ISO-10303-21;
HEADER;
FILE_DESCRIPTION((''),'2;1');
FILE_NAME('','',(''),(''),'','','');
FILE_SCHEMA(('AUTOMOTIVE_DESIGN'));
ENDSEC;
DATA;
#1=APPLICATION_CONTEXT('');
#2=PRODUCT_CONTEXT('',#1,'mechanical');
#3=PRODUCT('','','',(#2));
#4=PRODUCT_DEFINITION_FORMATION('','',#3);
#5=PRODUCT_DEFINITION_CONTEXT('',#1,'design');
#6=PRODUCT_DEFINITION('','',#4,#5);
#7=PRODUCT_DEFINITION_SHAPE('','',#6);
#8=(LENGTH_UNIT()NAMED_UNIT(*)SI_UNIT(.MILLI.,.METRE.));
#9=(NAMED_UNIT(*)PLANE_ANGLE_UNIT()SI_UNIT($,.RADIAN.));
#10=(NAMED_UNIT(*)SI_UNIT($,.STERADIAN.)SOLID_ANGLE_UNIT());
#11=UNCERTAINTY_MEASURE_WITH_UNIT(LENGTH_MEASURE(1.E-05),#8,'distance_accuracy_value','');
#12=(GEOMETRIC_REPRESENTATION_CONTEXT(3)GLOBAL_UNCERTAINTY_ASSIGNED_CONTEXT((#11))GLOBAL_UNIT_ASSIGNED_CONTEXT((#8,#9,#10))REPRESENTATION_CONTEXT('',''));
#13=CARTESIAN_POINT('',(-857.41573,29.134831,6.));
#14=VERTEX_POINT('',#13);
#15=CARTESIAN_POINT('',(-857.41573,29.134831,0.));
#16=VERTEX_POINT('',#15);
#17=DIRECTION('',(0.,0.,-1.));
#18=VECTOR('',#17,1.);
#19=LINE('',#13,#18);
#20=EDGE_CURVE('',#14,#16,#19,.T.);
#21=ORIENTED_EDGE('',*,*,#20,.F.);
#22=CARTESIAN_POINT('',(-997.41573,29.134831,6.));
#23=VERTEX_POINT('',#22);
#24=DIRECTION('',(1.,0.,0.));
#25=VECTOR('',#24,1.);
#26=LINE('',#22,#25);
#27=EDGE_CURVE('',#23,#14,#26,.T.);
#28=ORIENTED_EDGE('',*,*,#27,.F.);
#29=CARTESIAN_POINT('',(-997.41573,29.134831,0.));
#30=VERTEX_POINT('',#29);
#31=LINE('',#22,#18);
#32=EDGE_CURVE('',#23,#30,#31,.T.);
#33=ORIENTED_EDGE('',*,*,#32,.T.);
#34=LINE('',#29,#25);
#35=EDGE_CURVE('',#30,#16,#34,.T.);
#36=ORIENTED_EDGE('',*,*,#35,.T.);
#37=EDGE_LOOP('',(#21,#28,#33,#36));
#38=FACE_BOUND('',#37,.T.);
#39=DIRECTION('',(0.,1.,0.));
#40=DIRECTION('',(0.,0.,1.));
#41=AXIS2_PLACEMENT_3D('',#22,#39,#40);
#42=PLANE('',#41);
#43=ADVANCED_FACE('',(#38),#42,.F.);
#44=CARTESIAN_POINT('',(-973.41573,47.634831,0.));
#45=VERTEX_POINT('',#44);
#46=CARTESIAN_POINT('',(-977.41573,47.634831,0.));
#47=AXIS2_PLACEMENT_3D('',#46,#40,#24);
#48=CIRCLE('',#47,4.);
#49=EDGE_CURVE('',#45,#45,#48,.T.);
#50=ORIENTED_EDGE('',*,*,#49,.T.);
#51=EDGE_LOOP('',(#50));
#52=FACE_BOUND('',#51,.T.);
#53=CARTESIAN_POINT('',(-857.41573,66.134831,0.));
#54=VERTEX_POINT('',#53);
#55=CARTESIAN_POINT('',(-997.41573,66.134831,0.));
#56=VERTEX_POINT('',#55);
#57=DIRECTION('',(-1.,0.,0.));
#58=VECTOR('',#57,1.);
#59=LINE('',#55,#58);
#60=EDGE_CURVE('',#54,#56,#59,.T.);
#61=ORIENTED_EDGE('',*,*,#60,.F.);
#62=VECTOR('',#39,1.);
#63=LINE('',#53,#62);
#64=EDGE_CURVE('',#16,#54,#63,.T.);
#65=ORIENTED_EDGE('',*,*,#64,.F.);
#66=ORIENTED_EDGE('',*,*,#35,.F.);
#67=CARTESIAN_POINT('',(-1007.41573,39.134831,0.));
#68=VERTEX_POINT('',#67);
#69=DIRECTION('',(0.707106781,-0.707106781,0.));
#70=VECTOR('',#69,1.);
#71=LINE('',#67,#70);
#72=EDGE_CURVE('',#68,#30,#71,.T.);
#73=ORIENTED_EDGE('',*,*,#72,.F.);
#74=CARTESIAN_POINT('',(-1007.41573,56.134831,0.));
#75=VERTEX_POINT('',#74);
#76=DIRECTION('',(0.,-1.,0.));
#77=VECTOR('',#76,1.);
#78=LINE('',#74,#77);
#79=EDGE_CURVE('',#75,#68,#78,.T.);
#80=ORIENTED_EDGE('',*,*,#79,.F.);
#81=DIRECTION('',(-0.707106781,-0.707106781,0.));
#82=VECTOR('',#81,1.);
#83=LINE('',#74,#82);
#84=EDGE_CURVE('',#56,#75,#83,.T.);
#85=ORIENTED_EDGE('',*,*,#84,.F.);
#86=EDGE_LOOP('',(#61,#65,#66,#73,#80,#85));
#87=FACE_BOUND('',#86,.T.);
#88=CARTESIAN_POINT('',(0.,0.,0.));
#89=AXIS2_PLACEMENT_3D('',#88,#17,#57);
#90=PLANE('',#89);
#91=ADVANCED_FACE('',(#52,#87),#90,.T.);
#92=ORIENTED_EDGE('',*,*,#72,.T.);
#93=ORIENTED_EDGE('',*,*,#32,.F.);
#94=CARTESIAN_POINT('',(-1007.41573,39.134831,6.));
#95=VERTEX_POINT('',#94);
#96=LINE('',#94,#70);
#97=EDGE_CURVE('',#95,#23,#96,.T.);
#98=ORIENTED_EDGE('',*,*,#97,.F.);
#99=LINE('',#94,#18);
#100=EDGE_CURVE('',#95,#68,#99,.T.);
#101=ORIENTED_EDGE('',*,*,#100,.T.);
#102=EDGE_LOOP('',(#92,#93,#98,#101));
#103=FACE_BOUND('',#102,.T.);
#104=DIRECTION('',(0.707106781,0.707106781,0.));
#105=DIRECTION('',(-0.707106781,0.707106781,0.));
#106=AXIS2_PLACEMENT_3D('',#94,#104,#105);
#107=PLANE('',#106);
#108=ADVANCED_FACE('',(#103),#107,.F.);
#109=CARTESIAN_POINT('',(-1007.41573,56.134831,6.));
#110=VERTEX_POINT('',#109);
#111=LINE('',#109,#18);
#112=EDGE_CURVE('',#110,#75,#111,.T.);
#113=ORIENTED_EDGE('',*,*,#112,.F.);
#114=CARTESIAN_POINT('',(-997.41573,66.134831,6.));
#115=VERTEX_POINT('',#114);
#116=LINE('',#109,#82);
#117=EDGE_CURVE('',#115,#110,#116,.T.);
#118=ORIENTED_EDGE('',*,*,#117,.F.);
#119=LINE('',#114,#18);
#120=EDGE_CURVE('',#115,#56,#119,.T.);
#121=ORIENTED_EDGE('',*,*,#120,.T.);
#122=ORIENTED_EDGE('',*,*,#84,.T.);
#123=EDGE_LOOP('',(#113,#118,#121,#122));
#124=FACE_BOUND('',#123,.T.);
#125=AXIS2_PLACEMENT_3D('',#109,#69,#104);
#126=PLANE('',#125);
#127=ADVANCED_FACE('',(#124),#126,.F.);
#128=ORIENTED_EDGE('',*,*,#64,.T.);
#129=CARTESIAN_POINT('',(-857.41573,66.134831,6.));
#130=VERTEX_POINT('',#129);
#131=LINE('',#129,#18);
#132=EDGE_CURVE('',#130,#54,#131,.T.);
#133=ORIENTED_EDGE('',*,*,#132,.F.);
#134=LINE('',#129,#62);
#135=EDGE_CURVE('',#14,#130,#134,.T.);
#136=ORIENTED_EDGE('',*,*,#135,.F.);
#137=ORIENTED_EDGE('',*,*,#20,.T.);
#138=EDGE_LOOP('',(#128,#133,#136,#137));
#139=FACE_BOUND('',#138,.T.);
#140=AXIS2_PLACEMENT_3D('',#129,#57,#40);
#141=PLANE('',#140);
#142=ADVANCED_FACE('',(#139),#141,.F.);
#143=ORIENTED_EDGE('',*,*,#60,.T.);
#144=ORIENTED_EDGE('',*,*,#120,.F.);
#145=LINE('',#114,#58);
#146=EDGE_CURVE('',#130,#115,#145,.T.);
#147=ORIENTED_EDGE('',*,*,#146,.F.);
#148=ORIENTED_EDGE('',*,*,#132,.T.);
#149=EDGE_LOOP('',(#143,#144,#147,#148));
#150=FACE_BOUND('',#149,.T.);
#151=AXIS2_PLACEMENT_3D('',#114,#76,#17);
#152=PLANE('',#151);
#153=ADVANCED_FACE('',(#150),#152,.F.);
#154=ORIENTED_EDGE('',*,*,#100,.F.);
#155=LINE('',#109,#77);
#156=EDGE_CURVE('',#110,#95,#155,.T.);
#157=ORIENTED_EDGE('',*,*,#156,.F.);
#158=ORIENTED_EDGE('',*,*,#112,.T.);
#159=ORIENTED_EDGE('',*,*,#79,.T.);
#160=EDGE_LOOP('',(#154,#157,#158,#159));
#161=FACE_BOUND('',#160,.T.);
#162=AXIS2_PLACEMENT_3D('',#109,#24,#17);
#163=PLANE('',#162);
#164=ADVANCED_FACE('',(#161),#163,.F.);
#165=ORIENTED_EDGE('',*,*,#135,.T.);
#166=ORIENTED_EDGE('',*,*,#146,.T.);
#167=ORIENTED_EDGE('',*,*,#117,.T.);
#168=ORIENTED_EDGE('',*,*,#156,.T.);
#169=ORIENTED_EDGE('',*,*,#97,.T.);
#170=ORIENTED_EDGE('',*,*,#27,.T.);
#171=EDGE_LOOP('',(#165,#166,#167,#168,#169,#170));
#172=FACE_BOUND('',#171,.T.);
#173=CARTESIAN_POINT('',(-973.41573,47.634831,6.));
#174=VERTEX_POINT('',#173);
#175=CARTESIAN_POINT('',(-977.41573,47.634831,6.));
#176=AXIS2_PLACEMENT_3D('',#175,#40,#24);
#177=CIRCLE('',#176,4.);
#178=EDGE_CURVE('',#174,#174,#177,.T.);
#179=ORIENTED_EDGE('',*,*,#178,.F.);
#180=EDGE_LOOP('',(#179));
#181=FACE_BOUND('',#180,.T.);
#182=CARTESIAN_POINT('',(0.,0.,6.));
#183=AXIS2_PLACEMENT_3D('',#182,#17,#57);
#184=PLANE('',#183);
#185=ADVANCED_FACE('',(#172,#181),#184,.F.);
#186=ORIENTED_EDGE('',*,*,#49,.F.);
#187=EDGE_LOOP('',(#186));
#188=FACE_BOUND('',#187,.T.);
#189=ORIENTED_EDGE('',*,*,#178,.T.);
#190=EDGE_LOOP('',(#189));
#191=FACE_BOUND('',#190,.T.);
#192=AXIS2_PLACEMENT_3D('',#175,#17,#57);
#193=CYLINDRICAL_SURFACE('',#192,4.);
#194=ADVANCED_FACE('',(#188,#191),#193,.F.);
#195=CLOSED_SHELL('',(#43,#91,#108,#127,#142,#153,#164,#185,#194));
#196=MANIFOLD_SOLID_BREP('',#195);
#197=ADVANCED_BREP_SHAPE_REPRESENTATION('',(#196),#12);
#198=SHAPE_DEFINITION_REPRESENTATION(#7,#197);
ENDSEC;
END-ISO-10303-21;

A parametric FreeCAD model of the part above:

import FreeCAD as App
import Part
import Sketcher
from FreeCAD import Vector

doc = App.newDocument("Part")
body = doc.addObject("PartDesign::Body", "Body")

# Sketch on XY plane
sketch1 = body.newObject("Sketcher::SketchObject", "Sketch")
sketch1.AttachmentSupport = (doc.getObject("XY_Plane"), [""])
sketch1.MapMode = "FlatFace"
sketch1.addGeometry(Part.LineSegment(Vector(-857.4, 66.1, 0), Vector(-997.4, 66.1, 0)), False)
sketch1.addGeometry(Part.LineSegment(Vector(-997.4, 66.1, 0), Vector(-1007.4, 56.1, 0)), False)
sketch1.addGeometry(Part.LineSegment(Vector(-1007.4, 56.1, 0), Vector(-1007.4, 39.1, 0)), False)
sketch1.addGeometry(Part.LineSegment(Vector(-1007.4, 39.1, 0), Vector(-997.4, 29.1, 0)), False)
sketch1.addGeometry(Part.LineSegment(Vector(-997.4, 29.1, 0), Vector(-857.4, 29.1, 0)), False)
sketch1.addGeometry(Part.LineSegment(Vector(-857.4, 29.1, 0), Vector(-857.4, 66.1, 0)), False)
sketch1.addGeometry(Part.Circle(Vector(-977.4, 47.6, 0), Vector(0, 0, 1), 4), False)
sketch1.addConstraint(Sketcher.Constraint("Coincident", 0, 2, 1, 1))
sketch1.addConstraint(Sketcher.Constraint("Coincident", 1, 2, 2, 1))
sketch1.addConstraint(Sketcher.Constraint("Coincident", 2, 2, 3, 1))
sketch1.addConstraint(Sketcher.Constraint("Coincident", 3, 2, 4, 1))
sketch1.addConstraint(Sketcher.Constraint("Coincident", 4, 2, 5, 1))
sketch1.addConstraint(Sketcher.Constraint("Coincident", 5, 2, 0, 1))
sketch1.addConstraint(Sketcher.Constraint("Horizontal", 0))
sketch1.addConstraint(Sketcher.Constraint("Vertical", 2))
sketch1.addConstraint(Sketcher.Constraint("Horizontal", 4))
sketch1.addConstraint(Sketcher.Constraint("Vertical", 5))
sketch1.addConstraint(Sketcher.Constraint("Perpendicular", 1, 3))
sketch1.addConstraint(Sketcher.Constraint("Vertical", 0, 2, 3, 2))
sketch1.addConstraint(Sketcher.Constraint("Equal", 1, 3))
sketch1.addConstraint(Sketcher.Constraint("Diameter", 6, 8.0))
sketch1.addConstraint(Sketcher.Constraint("DistanceX", 0, 2, 0, 1, 140.0))
sketch1.addConstraint(Sketcher.Constraint("DistanceY", 2, 2, 2, 1, 17.0))
sketch1.addConstraint(Sketcher.Constraint("DistanceY", 5, 1, 5, 2, 37.0))
sketch1.addConstraint(Sketcher.Constraint("DistanceX", 0, 2, 6, 3, 20.0))
sketch1.addConstraint(Sketcher.Constraint("DistanceY", 6, 3, 0, 2, 18.5))
sketch1.addConstraint(Sketcher.Constraint("DistanceX", 6, 3, -1, 1, 977.41573))
sketch1.addConstraint(Sketcher.Constraint("DistanceY", -1, 1, 6, 3, 47.634831))
pad1 = body.newObject("PartDesign::Pad", "Pad")
pad1.Profile = sketch1
pad1.Length = 6

doc.recompute()
